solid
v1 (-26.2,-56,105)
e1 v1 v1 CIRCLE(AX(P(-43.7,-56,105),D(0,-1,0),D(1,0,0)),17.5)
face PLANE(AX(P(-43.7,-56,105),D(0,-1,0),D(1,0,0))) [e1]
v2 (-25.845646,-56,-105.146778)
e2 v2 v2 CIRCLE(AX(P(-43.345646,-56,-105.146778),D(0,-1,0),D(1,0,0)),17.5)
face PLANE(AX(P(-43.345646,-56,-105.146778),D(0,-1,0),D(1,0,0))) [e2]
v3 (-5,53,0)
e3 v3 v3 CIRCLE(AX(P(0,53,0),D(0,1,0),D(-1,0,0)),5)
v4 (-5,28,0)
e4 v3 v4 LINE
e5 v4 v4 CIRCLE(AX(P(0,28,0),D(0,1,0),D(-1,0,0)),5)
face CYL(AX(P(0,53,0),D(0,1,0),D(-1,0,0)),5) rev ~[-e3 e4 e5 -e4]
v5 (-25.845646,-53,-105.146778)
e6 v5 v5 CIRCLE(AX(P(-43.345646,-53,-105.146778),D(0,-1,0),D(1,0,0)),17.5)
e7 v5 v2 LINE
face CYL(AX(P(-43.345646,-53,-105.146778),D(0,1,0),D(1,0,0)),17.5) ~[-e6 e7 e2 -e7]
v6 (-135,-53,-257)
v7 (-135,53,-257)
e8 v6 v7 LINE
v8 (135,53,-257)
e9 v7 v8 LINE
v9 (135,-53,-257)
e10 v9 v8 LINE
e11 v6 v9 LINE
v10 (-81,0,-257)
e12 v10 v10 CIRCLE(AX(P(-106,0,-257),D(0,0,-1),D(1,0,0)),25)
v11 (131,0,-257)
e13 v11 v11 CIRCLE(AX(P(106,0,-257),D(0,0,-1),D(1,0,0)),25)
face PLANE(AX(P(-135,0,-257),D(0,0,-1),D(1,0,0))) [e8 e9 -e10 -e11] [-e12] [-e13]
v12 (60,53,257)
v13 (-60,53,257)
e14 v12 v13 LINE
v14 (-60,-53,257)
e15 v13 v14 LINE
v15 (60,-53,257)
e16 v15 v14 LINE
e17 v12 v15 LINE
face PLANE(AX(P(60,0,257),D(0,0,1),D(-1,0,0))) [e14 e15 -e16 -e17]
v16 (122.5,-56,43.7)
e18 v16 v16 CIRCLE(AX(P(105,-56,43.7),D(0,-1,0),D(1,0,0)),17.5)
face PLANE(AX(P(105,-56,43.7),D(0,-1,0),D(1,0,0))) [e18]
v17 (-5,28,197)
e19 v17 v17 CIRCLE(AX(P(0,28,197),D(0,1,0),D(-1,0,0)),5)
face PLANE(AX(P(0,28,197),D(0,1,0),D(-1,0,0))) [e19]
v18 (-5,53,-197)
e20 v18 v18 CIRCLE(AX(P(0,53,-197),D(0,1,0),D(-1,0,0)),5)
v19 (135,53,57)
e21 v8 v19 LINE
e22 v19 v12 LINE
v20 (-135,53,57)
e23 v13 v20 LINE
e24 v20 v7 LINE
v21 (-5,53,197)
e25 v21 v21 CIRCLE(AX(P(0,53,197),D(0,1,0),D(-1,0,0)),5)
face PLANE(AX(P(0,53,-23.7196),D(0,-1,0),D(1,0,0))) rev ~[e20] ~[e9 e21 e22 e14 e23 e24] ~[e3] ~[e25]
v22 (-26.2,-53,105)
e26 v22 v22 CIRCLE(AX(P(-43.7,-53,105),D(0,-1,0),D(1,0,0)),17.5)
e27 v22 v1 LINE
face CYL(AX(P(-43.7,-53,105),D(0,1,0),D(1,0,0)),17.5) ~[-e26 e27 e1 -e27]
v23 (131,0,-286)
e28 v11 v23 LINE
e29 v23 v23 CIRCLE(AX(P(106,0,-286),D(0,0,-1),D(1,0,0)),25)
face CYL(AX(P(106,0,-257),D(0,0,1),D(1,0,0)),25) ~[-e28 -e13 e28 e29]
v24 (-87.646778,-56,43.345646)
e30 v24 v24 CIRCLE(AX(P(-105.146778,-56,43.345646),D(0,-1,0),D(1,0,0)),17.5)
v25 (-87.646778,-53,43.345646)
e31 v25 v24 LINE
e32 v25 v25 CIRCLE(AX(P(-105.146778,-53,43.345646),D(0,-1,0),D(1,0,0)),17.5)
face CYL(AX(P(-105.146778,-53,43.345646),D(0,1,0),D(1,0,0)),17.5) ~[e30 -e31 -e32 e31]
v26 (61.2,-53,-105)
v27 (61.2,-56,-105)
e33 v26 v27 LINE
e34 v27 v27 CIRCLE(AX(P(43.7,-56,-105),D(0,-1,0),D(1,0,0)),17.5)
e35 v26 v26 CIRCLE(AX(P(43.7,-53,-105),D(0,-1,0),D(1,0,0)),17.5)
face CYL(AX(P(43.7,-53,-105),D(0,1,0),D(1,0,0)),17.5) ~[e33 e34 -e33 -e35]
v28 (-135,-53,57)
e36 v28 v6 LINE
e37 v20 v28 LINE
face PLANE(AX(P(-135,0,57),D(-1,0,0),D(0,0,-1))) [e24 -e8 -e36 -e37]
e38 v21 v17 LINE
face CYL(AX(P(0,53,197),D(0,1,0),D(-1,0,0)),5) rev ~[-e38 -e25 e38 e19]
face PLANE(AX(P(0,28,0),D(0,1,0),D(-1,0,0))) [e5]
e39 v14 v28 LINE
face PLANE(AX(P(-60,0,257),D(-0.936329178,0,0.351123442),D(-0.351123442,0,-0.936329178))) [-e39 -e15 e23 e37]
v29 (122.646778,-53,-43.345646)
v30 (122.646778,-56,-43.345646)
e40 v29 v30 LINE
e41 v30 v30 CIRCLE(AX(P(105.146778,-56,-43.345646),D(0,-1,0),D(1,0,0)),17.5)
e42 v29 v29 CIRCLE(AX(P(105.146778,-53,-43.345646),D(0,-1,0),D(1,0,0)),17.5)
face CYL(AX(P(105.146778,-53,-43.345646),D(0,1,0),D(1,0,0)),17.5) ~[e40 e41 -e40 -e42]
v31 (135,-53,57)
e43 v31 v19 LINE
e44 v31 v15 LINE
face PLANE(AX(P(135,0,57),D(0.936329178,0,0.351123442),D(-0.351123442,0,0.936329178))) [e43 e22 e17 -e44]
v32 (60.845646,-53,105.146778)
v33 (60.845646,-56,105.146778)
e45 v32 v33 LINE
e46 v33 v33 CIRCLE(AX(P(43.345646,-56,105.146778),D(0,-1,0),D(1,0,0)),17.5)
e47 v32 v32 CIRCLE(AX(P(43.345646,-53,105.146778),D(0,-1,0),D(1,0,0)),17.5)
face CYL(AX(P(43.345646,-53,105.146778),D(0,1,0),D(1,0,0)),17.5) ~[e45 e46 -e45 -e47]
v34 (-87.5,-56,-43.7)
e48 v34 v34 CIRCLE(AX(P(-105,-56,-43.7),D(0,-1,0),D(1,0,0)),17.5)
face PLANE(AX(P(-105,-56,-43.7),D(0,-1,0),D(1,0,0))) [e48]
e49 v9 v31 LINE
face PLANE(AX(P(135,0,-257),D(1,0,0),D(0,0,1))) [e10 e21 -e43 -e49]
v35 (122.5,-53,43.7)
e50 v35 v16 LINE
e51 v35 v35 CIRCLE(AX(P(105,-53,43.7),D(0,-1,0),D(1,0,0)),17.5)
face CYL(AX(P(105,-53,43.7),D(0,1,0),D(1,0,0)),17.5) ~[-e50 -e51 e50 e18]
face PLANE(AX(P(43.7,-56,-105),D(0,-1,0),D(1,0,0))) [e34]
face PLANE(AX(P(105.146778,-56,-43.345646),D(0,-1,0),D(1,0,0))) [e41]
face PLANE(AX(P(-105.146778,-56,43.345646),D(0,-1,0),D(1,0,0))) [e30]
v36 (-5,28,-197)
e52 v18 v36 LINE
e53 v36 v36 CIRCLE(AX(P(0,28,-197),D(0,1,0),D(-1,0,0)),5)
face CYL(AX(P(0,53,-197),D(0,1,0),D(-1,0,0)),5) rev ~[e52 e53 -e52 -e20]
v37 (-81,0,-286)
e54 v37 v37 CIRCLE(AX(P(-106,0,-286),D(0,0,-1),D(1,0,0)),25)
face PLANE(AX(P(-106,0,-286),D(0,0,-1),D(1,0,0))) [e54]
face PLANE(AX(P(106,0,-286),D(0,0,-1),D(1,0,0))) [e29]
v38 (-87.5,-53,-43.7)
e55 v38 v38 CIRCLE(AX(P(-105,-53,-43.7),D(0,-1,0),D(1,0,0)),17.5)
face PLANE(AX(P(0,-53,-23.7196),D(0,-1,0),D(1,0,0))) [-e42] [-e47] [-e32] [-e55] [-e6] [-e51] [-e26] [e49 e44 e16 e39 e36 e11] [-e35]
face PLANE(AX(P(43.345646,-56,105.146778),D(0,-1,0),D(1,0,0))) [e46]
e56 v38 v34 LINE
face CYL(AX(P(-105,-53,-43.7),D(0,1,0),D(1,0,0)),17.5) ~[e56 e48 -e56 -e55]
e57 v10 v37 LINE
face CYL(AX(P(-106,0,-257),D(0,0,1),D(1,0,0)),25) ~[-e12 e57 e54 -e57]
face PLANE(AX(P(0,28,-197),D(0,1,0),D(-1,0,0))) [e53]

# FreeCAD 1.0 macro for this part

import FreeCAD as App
import Part
import Sketcher


def add_polygon(sketch, points):
    """Adds a closed chain of lines whose ends are joined by coincident constraints."""
    first, n = sketch.GeometryCount, len(points)
    for a, b in zip(points, points[1:] + points[:1]):
        sketch.addGeometry(Part.LineSegment(App.Vector(*a, 0), App.Vector(*b, 0)), False)
    for i in range(n):
        sketch.addConstraint(Sketcher.Constraint("Coincident", first + i, 2, first + (i + 1) % n, 1))

doc = App.newDocument("Part")
body = doc.addObject("PartDesign::Body", "Body")

sketch1 = doc.addObject("Sketcher::SketchObject", "Sketch")
body.addObject(sketch1)
sketch1.AttachmentSupport = (doc.XZ_Plane, [""])
sketch1.MapMode = "FlatFace"
add_polygon(sketch1, [(135, 57), (60, 257), (-60, 257), (-135, 57), (-135, -257), (135, -257)])
sketch1.addConstraint(Sketcher.Constraint("Horizontal", 1))
sketch1.addConstraint(Sketcher.Constraint("Vertical", 3))
sketch1.addConstraint(Sketcher.Constraint("Horizontal", 4))
sketch1.addConstraint(Sketcher.Constraint("Vertical", 5))
sketch1.addConstraint(Sketcher.Constraint("Symmetric", 2, 2, 5, 2, -2))
sketch1.addConstraint(Sketcher.Constraint("Equal", 0, 2))
sketch1.addConstraint(Sketcher.Constraint("DistanceX", 1, 2, 1, 1, 120.0))
sketch1.addConstraint(Sketcher.Constraint("DistanceX", 4, 1, 4, 2, 270.0))
sketch1.addConstraint(Sketcher.Constraint("DistanceY", 3, 2, 3, 1, 314.0))
sketch1.addConstraint(Sketcher.Constraint("DistanceY", -1, 1, 0, 2, 257.0))
sketch1.addConstraint(Sketcher.Constraint("DistanceY", -1, 1, 2, 2, 57.0))
pad1 = doc.addObject("PartDesign::Pad", "Pad")
body.addObject(pad1)
pad1.Profile = sketch1
pad1.Length = 106
pad1.Midplane = True

sketch2 = doc.addObject("Sketcher::SketchObject", "Sketch001")
body.addObject(sketch2)
sketch2.AttachmentSupport = (doc.XZ_Plane, [""])
sketch2.MapMode = "FlatFace"
sketch2.AttachmentOffset = App.Placement(App.Vector(0, 0, 53), App.Rotation())
sketch2.addGeometry(Part.Circle(App.Vector(105, 44, 0), App.Vector(0, 0, 1), 18), False)
sketch2.addGeometry(Part.Circle(App.Vector(43, 105, 0), App.Vector(0, 0, 1), 18), False)
sketch2.addGeometry(Part.Circle(App.Vector(-44, 105, 0), App.Vector(0, 0, 1), 18), False)
sketch2.addGeometry(Part.Circle(App.Vector(-105, 43, 0), App.Vector(0, 0, 1), 18), False)
sketch2.addGeometry(Part.Circle(App.Vector(-105, -44, 0), App.Vector(0, 0, 1), 18), False)
sketch2.addGeometry(Part.Circle(App.Vector(-43, -105, 0), App.Vector(0, 0, 1), 18), False)
sketch2.addGeometry(Part.Circle(App.Vector(44, -105, 0), App.Vector(0, 0, 1), 18), False)
sketch2.addGeometry(Part.Circle(App.Vector(105, -43, 0), App.Vector(0, 0, 1), 18), False)
sketch2.addConstraint(Sketcher.Constraint("Equal", 0, 1))
sketch2.addConstraint(Sketcher.Constraint("Equal", 1, 2))
sketch2.addConstraint(Sketcher.Constraint("Equal", 2, 3))
sketch2.addConstraint(Sketcher.Constraint("Equal", 3, 4))
sketch2.addConstraint(Sketcher.Constraint("Equal", 4, 5))
sketch2.addConstraint(Sketcher.Constraint("Equal", 5, 6))
sketch2.addConstraint(Sketcher.Constraint("Equal", 6, 7))
sketch2.addConstraint(Sketcher.Constraint("Symmetric", 0, 3, 4, 3, -1, 1))
sketch2.addConstraint(Sketcher.Constraint("Symmetric", 1, 3, 5, 3, -1, 1))
sketch2.addConstraint(Sketcher.Constraint("Symmetric", 2, 3, 6, 3, -1, 1))
sketch2.addConstraint(Sketcher.Constraint("Symmetric", 3, 3, 7, 3, -1, 1))
sketch2.addConstraint(Sketcher.Constraint("Diameter", 0, 35.0))
sketch2.addConstraint(Sketcher.Constraint("DistanceX", -1, 1, 0, 3, 105.0))
sketch2.addConstraint(Sketcher.Constraint("DistanceY", -1, 1, 2, 3, 105.0))
sketch2.addConstraint(Sketcher.Constraint("DistanceY", -1, 1, 0, 3, 43.7))
sketch2.addConstraint(Sketcher.Constraint("DistanceX", 2, 3, -1, 1, 43.7))
sketch2.addConstraint(Sketcher.Constraint("DistanceY", 3, 3, 1, 3, 61.801132))
sketch2.addConstraint(Sketcher.Constraint("DistanceY", 4, 3, 1, 3, 148.846778))
sketch2.addConstraint(Sketcher.Constraint("DistanceX", 3, 3, 5, 3, 61.801132))
sketch2.addConstraint(Sketcher.Constraint("DistanceX", 3, 3, 6, 3, 148.846778))
pad2 = doc.addObject("PartDesign::Pad", "Pad001")
body.addObject(pad2)
pad2.Profile = sketch2
pad2.Length = 3

sketch3 = doc.addObject("Sketcher::SketchObject", "Sketch002")
body.addObject(sketch3)
sketch3.AttachmentSupport = (doc.XZ_Plane, [""])
sketch3.MapMode = "FlatFace"
sketch3.AttachmentOffset = App.Placement(App.Vector(0, 0, -53), App.Rotation())
sketch3.addGeometry(Part.Circle(App.Vector(0, 0, 0), App.Vector(0, 0, 1), 5), False)
sketch3.addGeometry(Part.Circle(App.Vector(0, 197, 0), App.Vector(0, 0, 1), 5), False)
sketch3.addGeometry(Part.Circle(App.Vector(0, -197, 0), App.Vector(0, 0, 1), 5), False)
sketch3.addConstraint(Sketcher.Constraint("Coincident", 0, 3, -1, 1))
sketch3.addConstraint(Sketcher.Constraint("Equal", 0, 1))
sketch3.addConstraint(Sketcher.Constraint("Equal", 1, 2))
sketch3.addConstraint(Sketcher.Constraint("Symmetric", 1, 3, 2, 3, -1, 1))
sketch3.addConstraint(Sketcher.Constraint("PointOnObject", 1, 3, -2))
sketch3.addConstraint(Sketcher.Constraint("Diameter", 0, 10.0))
sketch3.addConstraint(Sketcher.Constraint("DistanceY", -1, 1, 1, 3, 197.0))
pocket1 = doc.addObject("PartDesign::Pocket", "Pocket")
body.addObject(pocket1)
pocket1.Profile = sketch3
pocket1.Length = 25
pocket1.Reversed = True

sketch4 = doc.addObject("Sketcher::SketchObject", "Sketch003")
body.addObject(sketch4)
sketch4.AttachmentSupport = (doc.XY_Plane, [""])
sketch4.MapMode = "FlatFace"
sketch4.AttachmentOffset = App.Placement(App.Vector(0, 0, -257), App.Rotation())
sketch4.addGeometry(Part.Circle(App.Vector(106, 0, 0), App.Vector(0, 0, 1), 25), False)
sketch4.addGeometry(Part.Circle(App.Vector(-106, 0, 0), App.Vector(0, 0, 1), 25), False)
sketch4.addConstraint(Sketcher.Constraint("Equal", 0, 1))
sketch4.addConstraint(Sketcher.Constraint("Symmetric", 0, 3, 1, 3, -1, 1))
sketch4.addConstraint(Sketcher.Constraint("PointOnObject", 0, 3, -1))
sketch4.addConstraint(Sketcher.Constraint("Diameter", 0, 50.0))
sketch4.addConstraint(Sketcher.Constraint("DistanceX", -1, 1, 0, 3, 106.0))
pad3 = doc.addObject("PartDesign::Pad", "Pad002")
body.addObject(pad3)
pad3.Profile = sketch4
pad3.Length = 29
pad3.Reversed = True

doc.recompute()
